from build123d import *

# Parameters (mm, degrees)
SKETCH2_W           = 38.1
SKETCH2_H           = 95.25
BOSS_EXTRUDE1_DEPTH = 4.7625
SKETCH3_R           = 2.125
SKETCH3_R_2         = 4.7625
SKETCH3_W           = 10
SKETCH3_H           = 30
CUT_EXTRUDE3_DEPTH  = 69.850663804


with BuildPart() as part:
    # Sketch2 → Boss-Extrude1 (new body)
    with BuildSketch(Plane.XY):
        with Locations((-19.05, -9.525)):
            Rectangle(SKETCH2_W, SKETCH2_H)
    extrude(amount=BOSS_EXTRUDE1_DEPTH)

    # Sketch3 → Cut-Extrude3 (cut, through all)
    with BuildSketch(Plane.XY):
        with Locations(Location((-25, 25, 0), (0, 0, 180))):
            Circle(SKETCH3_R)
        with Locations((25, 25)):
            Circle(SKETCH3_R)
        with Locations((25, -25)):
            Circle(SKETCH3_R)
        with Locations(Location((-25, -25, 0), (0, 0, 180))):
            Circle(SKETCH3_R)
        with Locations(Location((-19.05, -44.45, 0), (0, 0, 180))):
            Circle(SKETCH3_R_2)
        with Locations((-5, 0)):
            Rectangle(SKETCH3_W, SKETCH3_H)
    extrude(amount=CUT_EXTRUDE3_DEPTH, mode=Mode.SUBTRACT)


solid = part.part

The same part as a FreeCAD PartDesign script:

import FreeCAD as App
import Part
import Sketcher
Q = App.Units.Quantity


def add_polygon(sketch, points):
    """Adds a closed chain of lines whose ends are joined by coincident constraints."""
    first, n = sketch.GeometryCount, len(points)
    for a, b in zip(points, points[1:] + points[:1]):
        sketch.addGeometry(Part.LineSegment(App.Vector(*a, 0), App.Vector(*b, 0)), False)
    for i in range(n):
        sketch.addConstraint(Sketcher.Constraint("Coincident", first + i, 2, first + (i + 1) % n, 1))

doc = App.newDocument("Part")
body = doc.addObject("PartDesign::Body", "Body")

# Sketch on XY plane
sketch1 = doc.addObject("Sketcher::SketchObject", "Sketch")
body.addObject(sketch1)
sketch1.AttachmentSupport = (doc.XY_Plane, [""])
sketch1.MapMode = "FlatFace"
add_polygon(sketch1, [(-38, 38), (-38, -57), (0, -57), (0, 38)])  # lines 0-3
sketch1.addConstraint(Sketcher.Constraint("Vertical", 0))
sketch1.addConstraint(Sketcher.Constraint("Horizontal", 1))
sketch1.addConstraint(Sketcher.Constraint("Vertical", 2))
sketch1.addConstraint(Sketcher.Constraint("Horizontal", 3))
sketch1.addConstraint(Sketcher.Constraint("PointOnObject", 1, 2, -2))
sketch1.addConstraint(Sketcher.Constraint("DistanceX", 1, 1, 1, 2, Q("1.5 in")))
sketch1.addConstraint(Sketcher.Constraint("DistanceY", 0, 2, 0, 1, Q("3.75 in")))
sketch1.addConstraint(Sketcher.Constraint("DistanceY", -1, 1, 2, 2, Q("1.5 in")))
pad1 = doc.addObject("PartDesign::Pad", "Pad")
body.addObject(pad1)
pad1.Profile = sketch1
pad1.Length = Q("0.1875 in")

# Sketch on XY plane
sketch2 = doc.addObject("Sketcher::SketchObject", "Sketch001")
body.addObject(sketch2)
sketch2.AttachmentSupport = (doc.XY_Plane, [""])
sketch2.MapMode = "FlatFace"
sketch2.addGeometry(Part.Circle(App.Vector(-25, 25, 0), App.Vector(0, 0, 1), 2.1), False)  # 0
sketch2.addGeometry(Part.Circle(App.Vector(25, 25, 0), App.Vector(0, 0, 1), 2.1), False)  # 1
sketch2.addGeometry(Part.Circle(App.Vector(25, -25, 0), App.Vector(0, 0, 1), 2.1), False)  # 2
sketch2.addGeometry(Part.Circle(App.Vector(-25, -25, 0), App.Vector(0, 0, 1), 2.1), False)  # 3
sketch2.addGeometry(Part.Circle(App.Vector(-19.1, -44.5, 0), App.Vector(0, 0, 1), 4.8), False)  # 4
add_polygon(sketch2, [(-10, 15), (-10, -15), (0, -15), (0, 15)])  # lines 5-8
sketch2.addConstraint(Sketcher.Constraint("Vertical", 5))
sketch2.addConstraint(Sketcher.Constraint("Horizontal", 6))
sketch2.addConstraint(Sketcher.Constraint("Vertical", 7))
sketch2.addConstraint(Sketcher.Constraint("Horizontal", 8))
sketch2.addConstraint(Sketcher.Constraint("Equal", 0, 1))
sketch2.addConstraint(Sketcher.Constraint("Equal", 1, 2))
sketch2.addConstraint(Sketcher.Constraint("Equal", 2, 3))
sketch2.addConstraint(Sketcher.Constraint("Symmetric", 0, 3, 2, 3, -1, 1))
sketch2.addConstraint(Sketcher.Constraint("Symmetric", 1, 3, 3, 3, -1, 1))
sketch2.addConstraint(Sketcher.Constraint("Symmetric", 6, 2, 7, 2, -1, 1))
sketch2.addConstraint(Sketcher.Constraint("Symmetric", 0, 3, 1, 3, -2))
sketch2.addConstraint(Sketcher.Constraint("Diameter", 4, Q("0.375 in")))
sketch2.addConstraint(Sketcher.Constraint("Diameter", 0, 4.25))
sketch2.addConstraint(Sketcher.Constraint("DistanceX", 4, 3, -1, 1, Q("0.75 in")))
sketch2.addConstraint(Sketcher.Constraint("DistanceY", 4, 3, -1, 1, Q("1.75 in")))
sketch2.addConstraint(Sketcher.Constraint("DistanceX", 6, 1, 6, 2, 10.0))
sketch2.addConstraint(Sketcher.Constraint("DistanceY", 5, 2, 5, 1, 30.0))
sketch2.addConstraint(Sketcher.Constraint("DistanceX", 0, 3, -1, 1, 25.0))
sketch2.addConstraint(Sketcher.Constraint("DistanceY", -1, 1, 0, 3, 25.0))
pocket1 = doc.addObject("PartDesign::Pocket", "Pocket")
body.addObject(pocket1)
pocket1.Profile = sketch2
pocket1.Type = "ThroughAll"
pocket1.Reversed = True

doc.recompute()
